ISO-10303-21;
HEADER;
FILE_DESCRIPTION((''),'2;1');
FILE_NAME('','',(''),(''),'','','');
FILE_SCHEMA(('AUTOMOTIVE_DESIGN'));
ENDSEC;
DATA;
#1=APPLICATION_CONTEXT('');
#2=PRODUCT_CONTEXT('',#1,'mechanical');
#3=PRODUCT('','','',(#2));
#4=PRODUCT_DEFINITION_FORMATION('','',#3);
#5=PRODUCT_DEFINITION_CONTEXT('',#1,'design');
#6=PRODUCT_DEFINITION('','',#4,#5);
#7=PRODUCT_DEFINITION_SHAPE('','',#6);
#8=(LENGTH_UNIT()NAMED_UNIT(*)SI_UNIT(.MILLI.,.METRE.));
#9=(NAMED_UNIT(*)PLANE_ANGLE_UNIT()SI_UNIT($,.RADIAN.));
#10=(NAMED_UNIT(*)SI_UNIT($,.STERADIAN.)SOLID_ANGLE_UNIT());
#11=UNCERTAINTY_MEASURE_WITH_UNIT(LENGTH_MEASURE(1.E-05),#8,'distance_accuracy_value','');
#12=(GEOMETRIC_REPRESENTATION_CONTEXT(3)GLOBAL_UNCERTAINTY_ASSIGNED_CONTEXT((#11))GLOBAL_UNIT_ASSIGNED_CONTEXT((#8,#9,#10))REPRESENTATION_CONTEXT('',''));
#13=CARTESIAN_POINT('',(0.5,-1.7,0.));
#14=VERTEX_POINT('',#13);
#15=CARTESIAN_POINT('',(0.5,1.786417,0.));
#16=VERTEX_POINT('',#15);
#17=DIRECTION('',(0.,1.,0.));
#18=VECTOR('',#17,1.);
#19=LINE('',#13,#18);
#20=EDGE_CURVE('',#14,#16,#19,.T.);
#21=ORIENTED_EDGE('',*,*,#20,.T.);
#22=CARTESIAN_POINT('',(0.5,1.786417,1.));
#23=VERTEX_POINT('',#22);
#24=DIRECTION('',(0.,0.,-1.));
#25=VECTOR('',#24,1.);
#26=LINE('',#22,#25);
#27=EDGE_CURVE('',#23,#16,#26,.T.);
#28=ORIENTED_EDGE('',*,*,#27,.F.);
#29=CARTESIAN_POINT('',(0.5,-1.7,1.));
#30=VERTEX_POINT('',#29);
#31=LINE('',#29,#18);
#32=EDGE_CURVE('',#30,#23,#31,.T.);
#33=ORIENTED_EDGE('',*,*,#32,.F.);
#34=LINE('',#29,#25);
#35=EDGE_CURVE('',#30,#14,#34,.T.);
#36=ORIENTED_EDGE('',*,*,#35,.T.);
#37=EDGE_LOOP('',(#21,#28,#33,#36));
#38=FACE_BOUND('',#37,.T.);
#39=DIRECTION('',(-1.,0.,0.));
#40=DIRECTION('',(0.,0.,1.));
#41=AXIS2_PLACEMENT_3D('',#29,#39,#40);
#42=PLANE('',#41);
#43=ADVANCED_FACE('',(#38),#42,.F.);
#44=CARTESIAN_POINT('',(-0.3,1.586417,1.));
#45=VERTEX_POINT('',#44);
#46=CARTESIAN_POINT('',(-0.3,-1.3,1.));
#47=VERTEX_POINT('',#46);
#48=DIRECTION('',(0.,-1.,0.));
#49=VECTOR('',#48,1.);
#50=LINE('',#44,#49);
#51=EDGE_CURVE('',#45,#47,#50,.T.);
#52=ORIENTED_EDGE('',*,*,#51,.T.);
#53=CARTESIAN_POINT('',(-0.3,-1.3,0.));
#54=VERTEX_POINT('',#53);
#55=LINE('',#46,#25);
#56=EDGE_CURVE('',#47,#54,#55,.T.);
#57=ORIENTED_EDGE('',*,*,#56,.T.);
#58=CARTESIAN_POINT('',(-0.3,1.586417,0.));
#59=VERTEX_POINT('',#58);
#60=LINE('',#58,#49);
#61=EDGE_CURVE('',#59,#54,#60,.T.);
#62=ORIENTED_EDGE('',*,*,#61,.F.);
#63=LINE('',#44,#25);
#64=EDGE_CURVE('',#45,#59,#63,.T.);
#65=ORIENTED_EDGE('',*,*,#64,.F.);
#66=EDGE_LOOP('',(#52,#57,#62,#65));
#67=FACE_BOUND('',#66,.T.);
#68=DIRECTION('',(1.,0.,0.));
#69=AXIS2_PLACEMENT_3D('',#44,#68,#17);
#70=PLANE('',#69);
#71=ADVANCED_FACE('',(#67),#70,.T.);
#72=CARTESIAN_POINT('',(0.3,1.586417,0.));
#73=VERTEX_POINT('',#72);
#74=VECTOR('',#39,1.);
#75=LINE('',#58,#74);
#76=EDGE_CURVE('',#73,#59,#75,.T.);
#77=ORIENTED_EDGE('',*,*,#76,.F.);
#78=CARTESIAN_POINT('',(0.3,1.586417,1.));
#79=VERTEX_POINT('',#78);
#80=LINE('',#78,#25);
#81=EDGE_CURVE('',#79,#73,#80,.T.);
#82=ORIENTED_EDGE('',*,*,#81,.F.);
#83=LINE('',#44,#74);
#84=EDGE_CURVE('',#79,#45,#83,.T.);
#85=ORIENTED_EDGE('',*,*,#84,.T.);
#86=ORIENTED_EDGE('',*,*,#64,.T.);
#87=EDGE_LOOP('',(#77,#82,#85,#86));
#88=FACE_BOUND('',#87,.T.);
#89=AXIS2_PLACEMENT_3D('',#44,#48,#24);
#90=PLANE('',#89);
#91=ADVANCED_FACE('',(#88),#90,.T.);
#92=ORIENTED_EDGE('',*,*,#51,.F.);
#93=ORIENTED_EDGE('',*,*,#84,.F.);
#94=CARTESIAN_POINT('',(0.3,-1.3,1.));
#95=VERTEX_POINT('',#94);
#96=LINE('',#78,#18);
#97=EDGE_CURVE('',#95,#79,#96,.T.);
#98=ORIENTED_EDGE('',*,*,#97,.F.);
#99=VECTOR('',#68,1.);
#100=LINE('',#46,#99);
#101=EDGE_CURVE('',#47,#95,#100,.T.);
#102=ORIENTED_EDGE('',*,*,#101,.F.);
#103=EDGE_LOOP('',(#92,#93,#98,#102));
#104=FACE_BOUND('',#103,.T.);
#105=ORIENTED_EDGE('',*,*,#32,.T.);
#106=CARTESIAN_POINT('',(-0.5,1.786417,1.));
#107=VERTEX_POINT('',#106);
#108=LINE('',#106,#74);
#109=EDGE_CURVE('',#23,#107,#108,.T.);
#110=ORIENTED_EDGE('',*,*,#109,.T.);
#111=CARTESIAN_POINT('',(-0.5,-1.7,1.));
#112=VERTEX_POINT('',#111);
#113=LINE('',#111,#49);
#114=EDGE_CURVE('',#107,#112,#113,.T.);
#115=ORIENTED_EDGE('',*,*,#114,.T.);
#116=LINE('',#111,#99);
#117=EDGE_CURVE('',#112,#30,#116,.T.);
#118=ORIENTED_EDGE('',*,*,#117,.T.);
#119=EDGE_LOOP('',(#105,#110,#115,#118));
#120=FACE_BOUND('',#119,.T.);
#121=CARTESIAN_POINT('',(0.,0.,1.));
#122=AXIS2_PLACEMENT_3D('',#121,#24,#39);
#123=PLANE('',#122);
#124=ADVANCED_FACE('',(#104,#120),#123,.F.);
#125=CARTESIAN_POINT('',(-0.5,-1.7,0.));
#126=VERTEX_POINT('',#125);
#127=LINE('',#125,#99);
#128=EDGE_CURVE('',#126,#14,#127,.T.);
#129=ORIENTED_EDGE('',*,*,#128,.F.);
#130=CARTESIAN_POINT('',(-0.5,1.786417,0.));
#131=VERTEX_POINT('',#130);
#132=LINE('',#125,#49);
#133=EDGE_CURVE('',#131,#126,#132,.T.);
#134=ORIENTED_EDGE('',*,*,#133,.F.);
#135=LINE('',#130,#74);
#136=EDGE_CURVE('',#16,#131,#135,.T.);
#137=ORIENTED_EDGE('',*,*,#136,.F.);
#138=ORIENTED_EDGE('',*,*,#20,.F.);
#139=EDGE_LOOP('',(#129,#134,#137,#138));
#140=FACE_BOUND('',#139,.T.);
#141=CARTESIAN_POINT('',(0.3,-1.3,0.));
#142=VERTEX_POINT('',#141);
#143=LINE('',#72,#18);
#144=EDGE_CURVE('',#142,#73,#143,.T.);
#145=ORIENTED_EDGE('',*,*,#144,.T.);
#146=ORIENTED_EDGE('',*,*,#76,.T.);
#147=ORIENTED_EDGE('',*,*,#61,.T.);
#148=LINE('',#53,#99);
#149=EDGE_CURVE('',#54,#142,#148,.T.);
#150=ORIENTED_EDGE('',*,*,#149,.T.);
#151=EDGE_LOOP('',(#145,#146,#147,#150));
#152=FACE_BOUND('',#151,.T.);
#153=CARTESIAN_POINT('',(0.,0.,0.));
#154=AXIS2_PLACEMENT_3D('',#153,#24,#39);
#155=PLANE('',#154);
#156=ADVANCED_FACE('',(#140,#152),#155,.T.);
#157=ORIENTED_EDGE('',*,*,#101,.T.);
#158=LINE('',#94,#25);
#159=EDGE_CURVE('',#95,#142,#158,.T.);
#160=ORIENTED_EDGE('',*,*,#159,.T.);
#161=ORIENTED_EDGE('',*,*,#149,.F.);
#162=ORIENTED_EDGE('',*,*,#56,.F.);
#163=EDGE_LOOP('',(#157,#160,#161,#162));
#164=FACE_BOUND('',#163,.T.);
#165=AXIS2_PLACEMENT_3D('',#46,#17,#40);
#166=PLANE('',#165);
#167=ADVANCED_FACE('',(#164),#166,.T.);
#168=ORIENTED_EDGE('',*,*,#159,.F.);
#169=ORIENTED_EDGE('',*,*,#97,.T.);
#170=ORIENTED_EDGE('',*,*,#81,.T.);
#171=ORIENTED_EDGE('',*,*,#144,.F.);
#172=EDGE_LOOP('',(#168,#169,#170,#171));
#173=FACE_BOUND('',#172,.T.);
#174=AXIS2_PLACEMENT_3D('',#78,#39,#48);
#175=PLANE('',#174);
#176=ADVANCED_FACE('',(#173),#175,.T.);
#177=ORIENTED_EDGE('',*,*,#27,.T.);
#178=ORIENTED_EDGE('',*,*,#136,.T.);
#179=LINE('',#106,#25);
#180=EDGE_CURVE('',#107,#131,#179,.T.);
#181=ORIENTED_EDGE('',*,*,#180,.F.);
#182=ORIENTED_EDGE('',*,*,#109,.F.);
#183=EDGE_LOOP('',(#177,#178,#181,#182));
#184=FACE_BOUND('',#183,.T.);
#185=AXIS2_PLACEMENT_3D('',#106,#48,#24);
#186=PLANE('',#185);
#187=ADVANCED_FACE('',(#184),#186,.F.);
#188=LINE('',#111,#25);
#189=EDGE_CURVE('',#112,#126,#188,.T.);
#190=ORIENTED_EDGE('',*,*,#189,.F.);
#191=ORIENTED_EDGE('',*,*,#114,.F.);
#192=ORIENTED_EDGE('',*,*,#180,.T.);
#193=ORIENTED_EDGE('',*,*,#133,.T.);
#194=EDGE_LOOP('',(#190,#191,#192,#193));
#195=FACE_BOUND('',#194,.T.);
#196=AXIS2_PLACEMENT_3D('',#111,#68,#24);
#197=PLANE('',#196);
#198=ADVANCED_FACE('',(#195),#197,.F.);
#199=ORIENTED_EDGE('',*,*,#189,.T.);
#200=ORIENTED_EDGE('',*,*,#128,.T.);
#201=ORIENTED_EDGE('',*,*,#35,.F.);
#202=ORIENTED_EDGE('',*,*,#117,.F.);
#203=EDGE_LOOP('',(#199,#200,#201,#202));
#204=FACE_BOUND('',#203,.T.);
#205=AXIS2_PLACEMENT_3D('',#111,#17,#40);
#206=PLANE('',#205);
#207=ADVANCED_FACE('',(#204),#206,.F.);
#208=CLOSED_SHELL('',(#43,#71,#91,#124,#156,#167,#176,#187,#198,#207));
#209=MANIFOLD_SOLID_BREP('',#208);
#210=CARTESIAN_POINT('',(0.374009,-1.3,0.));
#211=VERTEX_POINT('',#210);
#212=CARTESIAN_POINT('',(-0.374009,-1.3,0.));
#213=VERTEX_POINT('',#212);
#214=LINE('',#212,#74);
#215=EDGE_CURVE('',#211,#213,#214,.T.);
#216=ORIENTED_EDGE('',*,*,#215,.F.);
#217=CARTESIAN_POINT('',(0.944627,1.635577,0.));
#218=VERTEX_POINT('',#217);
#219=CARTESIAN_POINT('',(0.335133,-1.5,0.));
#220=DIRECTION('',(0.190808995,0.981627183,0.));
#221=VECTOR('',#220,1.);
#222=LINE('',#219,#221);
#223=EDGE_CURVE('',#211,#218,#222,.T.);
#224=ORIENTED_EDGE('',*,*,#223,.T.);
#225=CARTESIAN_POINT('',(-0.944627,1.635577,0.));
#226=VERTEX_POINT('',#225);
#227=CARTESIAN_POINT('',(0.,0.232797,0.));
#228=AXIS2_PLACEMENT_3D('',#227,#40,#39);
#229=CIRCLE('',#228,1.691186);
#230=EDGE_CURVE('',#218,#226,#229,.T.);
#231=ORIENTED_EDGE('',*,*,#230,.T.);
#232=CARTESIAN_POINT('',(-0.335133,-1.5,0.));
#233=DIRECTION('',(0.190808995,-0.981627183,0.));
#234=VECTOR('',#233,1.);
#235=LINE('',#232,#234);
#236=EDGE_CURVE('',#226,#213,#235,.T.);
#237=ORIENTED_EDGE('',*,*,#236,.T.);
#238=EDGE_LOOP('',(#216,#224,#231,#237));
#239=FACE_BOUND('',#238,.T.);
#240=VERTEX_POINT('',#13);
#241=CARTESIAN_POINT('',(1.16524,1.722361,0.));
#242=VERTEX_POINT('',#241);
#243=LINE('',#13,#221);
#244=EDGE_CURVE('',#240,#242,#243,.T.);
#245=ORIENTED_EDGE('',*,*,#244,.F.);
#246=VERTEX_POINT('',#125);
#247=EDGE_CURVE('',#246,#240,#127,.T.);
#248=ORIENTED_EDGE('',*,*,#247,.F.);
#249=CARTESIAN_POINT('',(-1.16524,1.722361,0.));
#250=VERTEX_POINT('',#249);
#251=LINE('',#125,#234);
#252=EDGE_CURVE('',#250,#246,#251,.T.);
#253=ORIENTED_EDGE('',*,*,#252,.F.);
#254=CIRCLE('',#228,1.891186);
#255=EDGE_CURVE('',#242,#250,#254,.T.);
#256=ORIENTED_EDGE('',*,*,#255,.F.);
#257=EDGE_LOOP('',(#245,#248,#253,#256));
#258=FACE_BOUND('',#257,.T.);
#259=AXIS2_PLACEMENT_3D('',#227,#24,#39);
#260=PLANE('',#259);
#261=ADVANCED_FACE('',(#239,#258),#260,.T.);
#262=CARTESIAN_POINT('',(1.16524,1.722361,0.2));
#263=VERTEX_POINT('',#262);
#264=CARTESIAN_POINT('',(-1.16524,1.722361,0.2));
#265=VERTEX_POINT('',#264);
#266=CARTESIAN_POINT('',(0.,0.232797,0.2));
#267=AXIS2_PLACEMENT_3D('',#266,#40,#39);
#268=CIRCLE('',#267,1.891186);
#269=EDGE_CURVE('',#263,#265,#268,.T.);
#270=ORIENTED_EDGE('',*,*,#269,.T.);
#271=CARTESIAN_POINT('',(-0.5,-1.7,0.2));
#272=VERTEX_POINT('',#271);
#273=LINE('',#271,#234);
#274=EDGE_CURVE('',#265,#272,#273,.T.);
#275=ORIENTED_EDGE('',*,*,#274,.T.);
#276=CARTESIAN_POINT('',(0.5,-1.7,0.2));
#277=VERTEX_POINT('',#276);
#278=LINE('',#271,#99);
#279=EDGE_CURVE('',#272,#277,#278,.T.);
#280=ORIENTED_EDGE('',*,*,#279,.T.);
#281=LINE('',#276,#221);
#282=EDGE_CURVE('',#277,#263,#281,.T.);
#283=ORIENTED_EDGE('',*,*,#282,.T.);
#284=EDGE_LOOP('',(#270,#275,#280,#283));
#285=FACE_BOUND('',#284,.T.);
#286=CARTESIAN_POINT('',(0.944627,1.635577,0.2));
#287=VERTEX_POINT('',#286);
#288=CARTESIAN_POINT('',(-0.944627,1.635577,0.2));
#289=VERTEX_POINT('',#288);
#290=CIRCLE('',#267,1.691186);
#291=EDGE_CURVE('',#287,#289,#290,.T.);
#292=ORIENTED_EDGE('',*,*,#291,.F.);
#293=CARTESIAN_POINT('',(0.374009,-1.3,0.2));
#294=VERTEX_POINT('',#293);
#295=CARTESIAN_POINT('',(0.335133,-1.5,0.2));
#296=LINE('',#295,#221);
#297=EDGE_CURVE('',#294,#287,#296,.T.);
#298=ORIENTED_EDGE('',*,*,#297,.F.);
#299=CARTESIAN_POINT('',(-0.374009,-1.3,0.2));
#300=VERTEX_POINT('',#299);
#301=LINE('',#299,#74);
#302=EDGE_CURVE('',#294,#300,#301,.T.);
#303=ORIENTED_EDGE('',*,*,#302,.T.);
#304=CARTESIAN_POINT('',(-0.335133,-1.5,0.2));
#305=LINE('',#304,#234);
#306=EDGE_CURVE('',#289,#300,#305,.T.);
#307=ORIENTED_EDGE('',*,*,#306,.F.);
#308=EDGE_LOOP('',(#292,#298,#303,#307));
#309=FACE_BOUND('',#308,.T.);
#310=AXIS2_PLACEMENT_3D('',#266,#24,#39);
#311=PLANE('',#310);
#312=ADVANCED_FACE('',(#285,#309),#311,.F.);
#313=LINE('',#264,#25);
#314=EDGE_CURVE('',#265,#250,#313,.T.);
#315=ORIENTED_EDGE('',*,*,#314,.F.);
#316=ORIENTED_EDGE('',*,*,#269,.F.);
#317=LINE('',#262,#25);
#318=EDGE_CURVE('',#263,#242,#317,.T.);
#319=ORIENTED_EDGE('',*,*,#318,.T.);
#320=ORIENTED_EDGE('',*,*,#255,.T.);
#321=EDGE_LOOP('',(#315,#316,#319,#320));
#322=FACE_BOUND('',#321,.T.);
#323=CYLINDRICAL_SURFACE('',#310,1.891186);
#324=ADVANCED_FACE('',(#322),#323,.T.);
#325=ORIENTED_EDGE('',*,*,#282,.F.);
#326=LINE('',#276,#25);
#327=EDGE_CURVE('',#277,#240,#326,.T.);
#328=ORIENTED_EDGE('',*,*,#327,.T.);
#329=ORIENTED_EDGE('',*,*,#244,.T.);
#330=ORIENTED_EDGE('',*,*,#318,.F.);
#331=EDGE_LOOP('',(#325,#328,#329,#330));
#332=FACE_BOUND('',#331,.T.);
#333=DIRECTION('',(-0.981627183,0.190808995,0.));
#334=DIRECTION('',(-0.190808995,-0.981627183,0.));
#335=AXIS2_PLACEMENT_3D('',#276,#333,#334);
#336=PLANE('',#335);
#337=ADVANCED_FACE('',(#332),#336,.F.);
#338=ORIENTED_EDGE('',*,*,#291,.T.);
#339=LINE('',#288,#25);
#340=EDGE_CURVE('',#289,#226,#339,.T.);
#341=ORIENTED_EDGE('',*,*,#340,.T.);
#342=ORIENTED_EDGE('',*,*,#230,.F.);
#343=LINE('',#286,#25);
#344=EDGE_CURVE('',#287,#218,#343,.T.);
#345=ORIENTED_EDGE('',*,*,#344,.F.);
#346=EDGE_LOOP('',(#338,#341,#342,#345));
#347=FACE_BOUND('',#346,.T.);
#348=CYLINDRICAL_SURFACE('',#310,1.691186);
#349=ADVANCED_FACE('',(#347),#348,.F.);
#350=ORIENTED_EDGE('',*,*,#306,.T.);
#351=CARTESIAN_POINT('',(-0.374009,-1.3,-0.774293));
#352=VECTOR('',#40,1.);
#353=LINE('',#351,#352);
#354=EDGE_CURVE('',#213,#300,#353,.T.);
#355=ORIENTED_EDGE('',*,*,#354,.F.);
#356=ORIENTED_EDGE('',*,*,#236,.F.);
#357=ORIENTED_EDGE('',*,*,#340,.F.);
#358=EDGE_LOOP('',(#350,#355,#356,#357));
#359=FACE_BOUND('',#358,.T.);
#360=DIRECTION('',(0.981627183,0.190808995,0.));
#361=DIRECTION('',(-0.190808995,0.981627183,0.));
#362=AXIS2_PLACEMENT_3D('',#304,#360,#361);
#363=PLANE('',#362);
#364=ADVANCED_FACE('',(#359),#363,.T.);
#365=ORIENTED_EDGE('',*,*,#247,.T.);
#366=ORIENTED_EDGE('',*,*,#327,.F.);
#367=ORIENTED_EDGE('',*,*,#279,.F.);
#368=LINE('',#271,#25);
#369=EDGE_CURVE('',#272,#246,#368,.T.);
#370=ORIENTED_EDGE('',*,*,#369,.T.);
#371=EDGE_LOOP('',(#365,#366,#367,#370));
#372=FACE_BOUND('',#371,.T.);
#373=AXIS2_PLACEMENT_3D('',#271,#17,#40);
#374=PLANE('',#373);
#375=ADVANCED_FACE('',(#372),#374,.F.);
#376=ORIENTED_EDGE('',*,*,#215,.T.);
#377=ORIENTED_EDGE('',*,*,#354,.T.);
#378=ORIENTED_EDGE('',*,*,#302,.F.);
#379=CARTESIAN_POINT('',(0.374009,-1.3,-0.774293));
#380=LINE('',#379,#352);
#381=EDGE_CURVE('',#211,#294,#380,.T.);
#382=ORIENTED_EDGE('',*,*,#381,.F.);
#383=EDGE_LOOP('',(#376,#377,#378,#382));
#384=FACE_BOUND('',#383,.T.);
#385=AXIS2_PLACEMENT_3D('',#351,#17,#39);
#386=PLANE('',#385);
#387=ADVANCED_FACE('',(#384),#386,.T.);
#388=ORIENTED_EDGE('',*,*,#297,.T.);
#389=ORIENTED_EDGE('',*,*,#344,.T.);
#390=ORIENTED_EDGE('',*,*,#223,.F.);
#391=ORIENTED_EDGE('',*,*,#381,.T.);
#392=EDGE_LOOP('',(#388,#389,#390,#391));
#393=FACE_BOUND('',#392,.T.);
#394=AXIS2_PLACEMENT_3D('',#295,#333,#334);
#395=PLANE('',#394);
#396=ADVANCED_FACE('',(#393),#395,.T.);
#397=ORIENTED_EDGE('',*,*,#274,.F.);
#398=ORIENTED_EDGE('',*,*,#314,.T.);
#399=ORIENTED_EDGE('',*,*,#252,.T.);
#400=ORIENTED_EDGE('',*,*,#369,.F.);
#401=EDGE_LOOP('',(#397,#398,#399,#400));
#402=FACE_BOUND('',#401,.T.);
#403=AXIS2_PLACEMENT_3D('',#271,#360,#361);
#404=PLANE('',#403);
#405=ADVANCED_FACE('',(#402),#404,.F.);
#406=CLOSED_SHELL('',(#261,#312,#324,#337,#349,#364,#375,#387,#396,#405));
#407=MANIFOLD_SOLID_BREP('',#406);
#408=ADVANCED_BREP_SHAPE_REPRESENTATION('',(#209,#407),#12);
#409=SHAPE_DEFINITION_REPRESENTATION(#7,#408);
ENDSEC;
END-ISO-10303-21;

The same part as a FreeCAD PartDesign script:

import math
import FreeCAD as App
import Part
import Sketcher

V = App.Vector
Q = App.Units.Quantity


def add_polygon(sketch, points):
    """Adds a closed chain of lines whose ends are joined by coincident constraints."""
    first, n = sketch.GeometryCount, len(points)
    for a, b in zip(points, points[1:] + points[:1]):
        sketch.addGeometry(Part.LineSegment(App.Vector(*a, 0), App.Vector(*b, 0)), False)
    for i in range(n):
        sketch.addConstraint(Sketcher.Constraint("Coincident", first + i, 2, first + (i + 1) % n, 1))

doc = App.newDocument("Part")
body = doc.addObject("PartDesign::Body", "Body")

# Sketch on XY plane
sketch1 = body.newObject("Sketcher::SketchObject", "Sketch")
sketch1.AttachmentSupport = (doc.getObject("XY_Plane"), [""])
sketch1.MapMode = "FlatFace"
sketch1.addGeometry([
    Part.LineSegment(V(-1.2, 1.7, 0), V(-0.5, -1.7, 0)),  # 0
    Part.LineSegment(V(-0.5, -1.7, 0), V(0.5, -1.7, 0)),  # 1
    Part.LineSegment(V(0.5, -1.7, 0), V(1.2, 1.7, 0)),  # 2
    Part.ArcOfCircle(Part.Circle(V(0, 0.2, 0), V(0, 0, 1), 1.9), math.radians(52), math.radians(128)),  # 3
    Part.LineSegment(V(-0.3, -1.5, 0), V(-0.9, 1.6, 0)),  # 4
    Part.ArcOfCircle(Part.Circle(V(0, 0.2, 0), V(0, 0, 1), 1.7), math.radians(56), math.radians(124)),  # 5
    Part.LineSegment(V(0.9, 1.6, 0), V(0.3, -1.5, 0)),  # 6
    Part.LineSegment(V(0.3, -1.5, 0), V(-0.3, -1.5, 0)),  # 7
], False)
sketch1.addConstraint([
    Sketcher.Constraint("Coincident", 0, 2, 1, 1),
    Sketcher.Constraint("Coincident", 1, 2, 2, 1),
    Sketcher.Constraint("Coincident", 2, 2, 3, 1),
    Sketcher.Constraint("Coincident", 3, 2, 0, 1),
    Sketcher.Constraint("Coincident", 4, 2, 5, 2),
    Sketcher.Constraint("Coincident", 5, 1, 6, 1),
    Sketcher.Constraint("Coincident", 6, 2, 7, 1),
    Sketcher.Constraint("Coincident", 7, 2, 4, 1),
    Sketcher.Constraint("Horizontal", 1),
    Sketcher.Constraint("Horizontal", 7),
    Sketcher.Constraint("Coincident", 5, 3, 3, 3),
    Sketcher.Constraint("Symmetric", 2, 2, 3, 2, -2),
    Sketcher.Constraint("Parallel", 0, 4),
    Sketcher.Constraint("Parallel", 2, 6),
    Sketcher.Constraint("Horizontal", 4, 2, 5, 1),
    Sketcher.Constraint("Equal", 0, 2),
    Sketcher.Constraint("DistanceX", 1, 1, 1, 2, 1.0),
    Sketcher.Constraint("Angle", 0, Q("-79 deg")),
    Sketcher.Constraint("DistanceY", 0, 2, -1, 1, 1.7),
    Sketcher.Constraint("DistanceY", 6, 2, -1, 1, 1.5),
    Sketcher.Constraint("Radius", 3, 1.891186),
    Sketcher.Constraint("Radius", 5, 1.691186),
    Sketcher.Constraint("DistanceX", 7, 2, 7, 1, 0.670265),
    Sketcher.Constraint("DistanceX", -1, 1, 2, 2, 1.16524),
])
pad1 = body.newObject("PartDesign::Pad", "Pad")
pad1.Profile = sketch1
pad1.Length = 0.2

# Sketch on XY plane
sketch2 = body.newObject("Sketcher::SketchObject", "Sketch001")
sketch2.AttachmentSupport = (doc.getObject("XY_Plane"), [""])
sketch2.MapMode = "FlatFace"
sketch2.AttachmentOffset = App.Placement(V(0, 0, 0.2), App.Rotation())
add_polygon(sketch2, [(0.37, -1.3), (-0.37, -1.3), (-0.34, -1.5), (0.34, -1.5)])  # lines 0-3
sketch2.addConstraint([
    Sketcher.Constraint("Horizontal", 0),
    Sketcher.Constraint("Horizontal", 2),
    Sketcher.Constraint("Equal", 1, 3),
    Sketcher.Constraint("Angle", 1, Q("-79 deg")),
    Sketcher.Constraint("DistanceY", 0, 2, -1, 1, 1.3),
    Sketcher.Constraint("DistanceY", 1, 2, -1, 1, 1.5),
    Sketcher.Constraint("DistanceX", 0, 2, 0, 1, 0.748018),
    Sketcher.Constraint("DistanceX", 0, 2, -1, 1, 0.374009),
])
pad2 = body.newObject("PartDesign::Pad", "Pad001")
pad2.Profile = sketch2
pad2.Length = 0.2
pad2.Reversed = True
body2 = doc.addObject("PartDesign::Body", "Body001")

# Sketch on XY plane
sketch3 = body2.newObject("Sketcher::SketchObject", "Sketch002")
sketch3.AttachmentSupport = (doc.getObject("XY_Plane001"), [""])
sketch3.MapMode = "FlatFace"
add_polygon(sketch3, [(-0.5, 1.8), (-0.5, -1.7), (0.5, -1.7), (0.5, 1.8)])  # lines 0-3
add_polygon(sketch3, [(0.3, -1.3), (-0.3, -1.3), (-0.3, 1.6), (0.3, 1.6)])  # lines 4-7
sketch3.addConstraint([
    Sketcher.Constraint("Vertical", 0),
    Sketcher.Constraint("Horizontal", 1),
    Sketcher.Constraint("Vertical", 2),
    Sketcher.Constraint("Horizontal", 3),
    Sketcher.Constraint("Horizontal", 4),
    Sketcher.Constraint("Vertical", 5),
    Sketcher.Constraint("Horizontal", 6),
    Sketcher.Constraint("Vertical", 7),
    Sketcher.Constraint("DistanceX", 1, 1, 1, 2, 1.0),
    Sketcher.Constraint("DistanceX", 4, 2, 4, 1, 0.6),
    Sketcher.Constraint("DistanceX", 0, 2, -1, 1, 0.5),
    Sketcher.Constraint("DistanceY", 0, 2, -1, 1, 1.7),
    Sketcher.Constraint("DistanceX", 4, 2, -1, 1, 0.3),
    Sketcher.Constraint("DistanceY", 4, 2, -1, 1, 1.3),
    Sketcher.Constraint("DistanceY", 5, 2, 3, 2, 0.2),
    Sketcher.Constraint("DistanceY", 0, 2, 0, 1, 3.486417),
])
pad3 = body2.newObject("PartDesign::Pad", "Pad002")
pad3.Profile = sketch3
pad3.Length = 1

doc.recompute()
